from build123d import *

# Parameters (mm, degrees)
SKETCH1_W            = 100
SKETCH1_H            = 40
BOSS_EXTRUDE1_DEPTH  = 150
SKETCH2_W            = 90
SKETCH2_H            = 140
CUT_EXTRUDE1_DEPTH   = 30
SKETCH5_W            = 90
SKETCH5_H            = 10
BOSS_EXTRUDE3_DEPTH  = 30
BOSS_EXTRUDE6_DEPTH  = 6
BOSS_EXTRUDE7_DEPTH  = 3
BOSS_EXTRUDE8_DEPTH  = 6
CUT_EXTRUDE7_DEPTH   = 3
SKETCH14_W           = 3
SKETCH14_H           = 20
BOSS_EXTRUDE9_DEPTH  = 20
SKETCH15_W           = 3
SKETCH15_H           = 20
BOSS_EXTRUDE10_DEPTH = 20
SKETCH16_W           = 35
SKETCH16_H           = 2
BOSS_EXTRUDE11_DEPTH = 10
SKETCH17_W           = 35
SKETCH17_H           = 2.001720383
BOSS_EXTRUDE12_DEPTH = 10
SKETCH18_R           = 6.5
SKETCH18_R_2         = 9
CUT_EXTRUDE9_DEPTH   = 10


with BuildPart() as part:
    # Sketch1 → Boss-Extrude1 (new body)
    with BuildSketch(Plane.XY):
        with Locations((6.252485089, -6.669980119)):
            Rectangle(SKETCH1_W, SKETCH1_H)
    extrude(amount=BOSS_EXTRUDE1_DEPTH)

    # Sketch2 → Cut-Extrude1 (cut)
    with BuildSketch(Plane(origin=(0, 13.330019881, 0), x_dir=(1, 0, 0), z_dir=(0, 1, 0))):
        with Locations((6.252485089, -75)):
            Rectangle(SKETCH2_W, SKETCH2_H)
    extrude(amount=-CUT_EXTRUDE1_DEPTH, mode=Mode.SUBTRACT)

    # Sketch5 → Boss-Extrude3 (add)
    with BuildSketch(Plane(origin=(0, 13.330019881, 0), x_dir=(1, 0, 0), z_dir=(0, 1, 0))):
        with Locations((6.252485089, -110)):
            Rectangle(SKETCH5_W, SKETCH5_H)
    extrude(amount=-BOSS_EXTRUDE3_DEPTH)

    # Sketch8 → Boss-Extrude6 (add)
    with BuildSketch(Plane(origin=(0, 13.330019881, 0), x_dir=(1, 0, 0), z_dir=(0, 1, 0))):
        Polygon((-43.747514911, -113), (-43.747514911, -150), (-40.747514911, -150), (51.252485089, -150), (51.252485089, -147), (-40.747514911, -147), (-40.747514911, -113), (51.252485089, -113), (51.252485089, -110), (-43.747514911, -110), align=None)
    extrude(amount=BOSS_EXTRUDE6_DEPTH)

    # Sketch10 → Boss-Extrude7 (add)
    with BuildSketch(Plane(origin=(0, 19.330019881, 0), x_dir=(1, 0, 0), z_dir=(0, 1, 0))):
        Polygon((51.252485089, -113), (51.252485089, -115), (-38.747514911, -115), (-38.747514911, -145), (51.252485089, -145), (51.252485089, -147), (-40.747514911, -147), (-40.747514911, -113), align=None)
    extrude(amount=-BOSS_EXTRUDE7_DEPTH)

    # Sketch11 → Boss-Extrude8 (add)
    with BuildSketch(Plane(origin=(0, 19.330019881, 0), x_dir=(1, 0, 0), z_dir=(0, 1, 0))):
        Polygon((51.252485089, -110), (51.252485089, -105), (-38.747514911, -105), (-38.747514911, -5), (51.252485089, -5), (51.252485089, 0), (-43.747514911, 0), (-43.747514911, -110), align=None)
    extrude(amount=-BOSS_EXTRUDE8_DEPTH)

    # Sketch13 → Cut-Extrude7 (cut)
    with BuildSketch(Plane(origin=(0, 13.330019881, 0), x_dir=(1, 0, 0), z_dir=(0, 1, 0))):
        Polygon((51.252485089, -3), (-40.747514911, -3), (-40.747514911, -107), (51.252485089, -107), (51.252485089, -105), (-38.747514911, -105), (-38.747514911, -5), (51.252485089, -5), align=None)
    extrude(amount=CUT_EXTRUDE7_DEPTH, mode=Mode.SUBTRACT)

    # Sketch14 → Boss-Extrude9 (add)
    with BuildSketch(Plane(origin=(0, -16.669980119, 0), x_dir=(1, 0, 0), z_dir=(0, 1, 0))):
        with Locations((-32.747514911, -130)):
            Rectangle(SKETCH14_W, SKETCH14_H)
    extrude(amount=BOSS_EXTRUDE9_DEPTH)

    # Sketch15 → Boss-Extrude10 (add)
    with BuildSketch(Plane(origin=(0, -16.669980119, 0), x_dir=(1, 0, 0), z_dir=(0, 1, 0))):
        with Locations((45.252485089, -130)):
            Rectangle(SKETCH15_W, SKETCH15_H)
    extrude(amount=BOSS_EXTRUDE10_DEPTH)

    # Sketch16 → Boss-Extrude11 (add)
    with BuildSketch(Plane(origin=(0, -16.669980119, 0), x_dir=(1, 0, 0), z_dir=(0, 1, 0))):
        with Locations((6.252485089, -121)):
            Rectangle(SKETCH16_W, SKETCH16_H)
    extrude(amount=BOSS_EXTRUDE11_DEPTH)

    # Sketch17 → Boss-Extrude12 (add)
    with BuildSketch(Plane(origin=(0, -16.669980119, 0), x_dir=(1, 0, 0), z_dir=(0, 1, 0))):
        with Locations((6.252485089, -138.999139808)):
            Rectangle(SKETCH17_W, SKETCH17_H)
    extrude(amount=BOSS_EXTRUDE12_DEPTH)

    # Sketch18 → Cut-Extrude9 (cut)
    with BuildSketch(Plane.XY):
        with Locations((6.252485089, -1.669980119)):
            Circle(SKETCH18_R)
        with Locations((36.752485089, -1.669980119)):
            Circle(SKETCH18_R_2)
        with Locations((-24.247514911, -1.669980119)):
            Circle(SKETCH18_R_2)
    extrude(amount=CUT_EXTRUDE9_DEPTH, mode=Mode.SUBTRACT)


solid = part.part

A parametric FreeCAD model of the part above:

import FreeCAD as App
import Part
import Sketcher
from FreeCAD import Vector

doc = App.newDocument("Part")
body = doc.addObject("PartDesign::Body", "Body")

# Sketch on XY plane
sketch1 = body.newObject("Sketcher::SketchObject", "Sketch")
sketch1.AttachmentSupport = (doc.getObject("XY_Plane"), [""])
sketch1.MapMode = "FlatFace"
sketch1.addGeometry([
    Part.LineSegment(Vector(-44, 13, 0), Vector(-44, -27, 0)),
    Part.LineSegment(Vector(-44, -27, 0), Vector(56, -27, 0)),
    Part.LineSegment(Vector(56, -27, 0), Vector(56, 13, 0)),
    Part.LineSegment(Vector(56, 13, 0), Vector(-44, 13, 0)),
], False)
sketch1.addConstraint([
    Sketcher.Constraint("Coincident", 0, 2, 1, 1),
    Sketcher.Constraint("Coincident", 1, 2, 2, 1),
    Sketcher.Constraint("Coincident", 2, 2, 3, 1),
    Sketcher.Constraint("Coincident", 3, 2, 0, 1),
    Sketcher.Constraint("Vertical", 0),
    Sketcher.Constraint("Horizontal", 1),
    Sketcher.Constraint("Vertical", 2),
    Sketcher.Constraint("Horizontal", 3),
    Sketcher.Constraint("DistanceX", 1, 1, 1, 2, 100.0),
    Sketcher.Constraint("DistanceY", 0, 2, 0, 1, 40.0),
    Sketcher.Constraint("DistanceY", 0, 2, -1, 1, 26.66998),
    Sketcher.Constraint("DistanceX", 0, 2, -1, 1, 43.747515),
])
pad1 = body.newObject("PartDesign::Pad", "Pad")
pad1.Profile = sketch1
pad1.Length = 150

# Sketch on XZ plane
sketch2 = body.newObject("Sketcher::SketchObject", "Sketch001")
sketch2.AttachmentSupport = (doc.getObject("XZ_Plane"), [""])
sketch2.MapMode = "FlatFace"
sketch2.AttachmentOffset = App.Placement(Vector(0, 0, -13.33002), App.Rotation())
sketch2.addGeometry([
    Part.LineSegment(Vector(-39, 5, 0), Vector(-39, 145, 0)),
    Part.LineSegment(Vector(-39, 145, 0), Vector(51, 145, 0)),
    Part.LineSegment(Vector(51, 145, 0), Vector(51, 5, 0)),
    Part.LineSegment(Vector(51, 5, 0), Vector(-39, 5, 0)),
], False)
sketch2.addConstraint([
    Sketcher.Constraint("Coincident", 0, 2, 1, 1),
    Sketcher.Constraint("Coincident", 1, 2, 2, 1),
    Sketcher.Constraint("Coincident", 2, 2, 3, 1),
    Sketcher.Constraint("Coincident", 3, 2, 0, 1),
    Sketcher.Constraint("Vertical", 0),
    Sketcher.Constraint("Horizontal", 1),
    Sketcher.Constraint("Vertical", 2),
    Sketcher.Constraint("Horizontal", 3),
    Sketcher.Constraint("DistanceX", 1, 1, 1, 2, 90.0),
    Sketcher.Constraint("DistanceY", 0, 1, 0, 2, 140.0),
    Sketcher.Constraint("DistanceY", -1, 1, 0, 2, 145.0),
    Sketcher.Constraint("DistanceX", 0, 2, -1, 1, 38.747515),
])
pocket1 = body.newObject("PartDesign::Pocket", "Pocket")
pocket1.Profile = sketch2
pocket1.Length = 30
pocket1.Reversed = True

# Sketch on XZ plane
sketch3 = body.newObject("Sketcher::SketchObject", "Sketch002")
sketch3.AttachmentSupport = (doc.getObject("XZ_Plane"), [""])
sketch3.MapMode = "FlatFace"
sketch3.AttachmentOffset = App.Placement(Vector(0, 0, -13.33002), App.Rotation())
sketch3.addGeometry([
    Part.LineSegment(Vector(-39, 105, 0), Vector(-39, 115, 0)),
    Part.LineSegment(Vector(-39, 115, 0), Vector(51, 115, 0)),
    Part.LineSegment(Vector(51, 115, 0), Vector(51, 105, 0)),
    Part.LineSegment(Vector(51, 105, 0), Vector(-39, 105, 0)),
], False)
sketch3.addConstraint([
    Sketcher.Constraint("Coincident", 0, 2, 1, 1),
    Sketcher.Constraint("Coincident", 1, 2, 2, 1),
    Sketcher.Constraint("Coincident", 2, 2, 3, 1),
    Sketcher.Constraint("Coincident", 3, 2, 0, 1),
    Sketcher.Constraint("Vertical", 0),
    Sketcher.Constraint("Horizontal", 1),
    Sketcher.Constraint("Vertical", 2),
    Sketcher.Constraint("Horizontal", 3),
    Sketcher.Constraint("DistanceX", 1, 1, 1, 2, 90.0),
    Sketcher.Constraint("DistanceY", 0, 1, 0, 2, 10.0),
    Sketcher.Constraint("DistanceY", -1, 1, 0, 2, 115.0),
    Sketcher.Constraint("DistanceX", 0, 2, -1, 1, 38.747515),
])
pad2 = body.newObject("PartDesign::Pad", "Pad001")
pad2.Profile = sketch3
pad2.Length = 30

# Sketch on XZ plane
sketch4 = body.newObject("Sketcher::SketchObject", "Sketch003")
sketch4.AttachmentSupport = (doc.getObject("XZ_Plane"), [""])
sketch4.MapMode = "FlatFace"
sketch4.AttachmentOffset = App.Placement(Vector(0, 0, -13.33002), App.Rotation())
sketch4.addGeometry([
    Part.LineSegment(Vector(-43.7, 150, 0), Vector(51.3, 150, 0)),  # 0
    Part.LineSegment(Vector(51.3, 150, 0), Vector(51.3, 147, 0)),  # 1
    Part.LineSegment(Vector(51.3, 147, 0), Vector(-40.7, 147, 0)),  # 2
    Part.LineSegment(Vector(-40.7, 147, 0), Vector(-40.7, 113, 0)),  # 3
    Part.LineSegment(Vector(-40.7, 113, 0), Vector(51.3, 113, 0)),  # 4
    Part.LineSegment(Vector(51.3, 113, 0), Vector(51.3, 110, 0)),  # 5
    Part.LineSegment(Vector(51.3, 110, 0), Vector(-43.7, 110, 0)),  # 6
    Part.LineSegment(Vector(-43.7, 110, 0), Vector(-43.7, 150, 0)),  # 7
], False)
sketch4.addConstraint([
    Sketcher.Constraint("Coincident", 0, 2, 1, 1),
    Sketcher.Constraint("Coincident", 1, 2, 2, 1),
    Sketcher.Constraint("Coincident", 2, 2, 3, 1),
    Sketcher.Constraint("Coincident", 3, 2, 4, 1),
    Sketcher.Constraint("Coincident", 4, 2, 5, 1),
    Sketcher.Constraint("Coincident", 5, 2, 6, 1),
    Sketcher.Constraint("Coincident", 6, 2, 7, 1),
    Sketcher.Constraint("Coincident", 7, 2, 0, 1),
    Sketcher.Constraint("Horizontal", 0),
    Sketcher.Constraint("Vertical", 1),
    Sketcher.Constraint("Horizontal", 2),
    Sketcher.Constraint("Vertical", 3),
    Sketcher.Constraint("Horizontal", 4),
    Sketcher.Constraint("Vertical", 5),
    Sketcher.Constraint("Horizontal", 6),
    Sketcher.Constraint("Vertical", 7),
    Sketcher.Constraint("Vertical", 1, 2, 4, 2),
    Sketcher.Constraint("Equal", 1, 5),
    Sketcher.Constraint("DistanceX", 0, 1, 0, 2, 95.0),
    Sketcher.Constraint("DistanceX", 2, 2, 2, 1, 92.0),
    Sketcher.Constraint("DistanceY", 1, 2, 1, 1, 3.0),
    Sketcher.Constraint("DistanceY", 3, 2, 3, 1, 34.0),
    Sketcher.Constraint("DistanceY", -1, 1, 0, 2, 150.0),
    Sketcher.Constraint("DistanceX", -1, 1, 0, 2, 51.252485),
])
pad3 = body.newObject("PartDesign::Pad", "Pad002")
pad3.Profile = sketch4
pad3.Length = 6
pad3.Reversed = True

# Sketch on XZ plane
sketch5 = body.newObject("Sketcher::SketchObject", "Sketch004")
sketch5.AttachmentSupport = (doc.getObject("XZ_Plane"), [""])
sketch5.MapMode = "FlatFace"
sketch5.AttachmentOffset = App.Placement(Vector(0, 0, -19.33002), App.Rotation())
sketch5.addGeometry([
    Part.LineSegment(Vector(51.3, 115, 0), Vector(51.3, 113, 0)),  # 0
    Part.LineSegment(Vector(51.3, 113, 0), Vector(-40.7, 113, 0)),  # 1
    Part.LineSegment(Vector(-40.7, 113, 0), Vector(-40.7, 147, 0)),  # 2
    Part.LineSegment(Vector(-40.7, 147, 0), Vector(51.3, 147, 0)),  # 3
    Part.LineSegment(Vector(51.3, 147, 0), Vector(51.3, 145, 0)),  # 4
    Part.LineSegment(Vector(51.3, 145, 0), Vector(-38.7, 145, 0)),  # 5
    Part.LineSegment(Vector(-38.7, 145, 0), Vector(-38.7, 115, 0)),  # 6
    Part.LineSegment(Vector(-38.7, 115, 0), Vector(51.3, 115, 0)),  # 7
], False)
sketch5.addConstraint([
    Sketcher.Constraint("Coincident", 0, 2, 1, 1),
    Sketcher.Constraint("Coincident", 1, 2, 2, 1),
    Sketcher.Constraint("Coincident", 2, 2, 3, 1),
    Sketcher.Constraint("Coincident", 3, 2, 4, 1),
    Sketcher.Constraint("Coincident", 4, 2, 5, 1),
    Sketcher.Constraint("Coincident", 5, 2, 6, 1),
    Sketcher.Constraint("Coincident", 6, 2, 7, 1),
    Sketcher.Constraint("Coincident", 7, 2, 0, 1),
    Sketcher.Constraint("Vertical", 0),
    Sketcher.Constraint("Horizontal", 1),
    Sketcher.Constraint("Vertical", 2),
    Sketcher.Constraint("Horizontal", 3),
    Sketcher.Constraint("Vertical", 4),
    Sketcher.Constraint("Horizontal", 5),
    Sketcher.Constraint("Vertical", 6),
    Sketcher.Constraint("Horizontal", 7),
    Sketcher.Constraint("Vertical", 0, 2, 3, 2),
    Sketcher.Constraint("Equal", 0, 4),
    Sketcher.Constraint("DistanceX", 1, 2, 1, 1, 92.0),
    Sketcher.Constraint("DistanceX", 5, 2, 5, 1, 90.0),
    Sketcher.Constraint("DistanceY", 0, 2, 0, 1, 2.0),
    Sketcher.Constraint("DistanceY", 2, 1, 2, 2, 34.0),
    Sketcher.Constraint("DistanceY", -1, 1, 0, 2, 113.0),
    Sketcher.Constraint("DistanceX", -1, 1, 0, 2, 51.252485),
])
pad4 = body.newObject("PartDesign::Pad", "Pad003")
pad4.Profile = sketch5
pad4.Length = 3

# Sketch on XZ plane
sketch6 = body.newObject("Sketcher::SketchObject", "Sketch005")
sketch6.AttachmentSupport = (doc.getObject("XZ_Plane"), [""])
sketch6.MapMode = "FlatFace"
sketch6.AttachmentOffset = App.Placement(Vector(0, 0, -19.33002), App.Rotation())
sketch6.addGeometry([
    Part.LineSegment(Vector(51, 110, 0), Vector(51, 105, 0)),  # 0
    Part.LineSegment(Vector(51, 105, 0), Vector(-39, 105, 0)),  # 1
    Part.LineSegment(Vector(-39, 105, 0), Vector(-39, 5, 0)),  # 2
    Part.LineSegment(Vector(-39, 5, 0), Vector(51, 5, 0)),  # 3
    Part.LineSegment(Vector(51, 5, 0), Vector(51, 0, 0)),  # 4
    Part.LineSegment(Vector(51, 0, 0), Vector(-44, 0, 0)),  # 5
    Part.LineSegment(Vector(-44, 0, 0), Vector(-44, 110, 0)),  # 6
    Part.LineSegment(Vector(-44, 110, 0), Vector(51, 110, 0)),  # 7
], False)
sketch6.addConstraint([
    Sketcher.Constraint("Coincident", 0, 2, 1, 1),
    Sketcher.Constraint("Coincident", 1, 2, 2, 1),
    Sketcher.Constraint("Coincident", 2, 2, 3, 1),
    Sketcher.Constraint("Coincident", 3, 2, 4, 1),
    Sketcher.Constraint("Coincident", 4, 2, 5, 1),
    Sketcher.Constraint("Coincident", 5, 2, 6, 1),
    Sketcher.Constraint("Coincident", 6, 2, 7, 1),
    Sketcher.Constraint("Coincident", 7, 2, 0, 1),
    Sketcher.Constraint("Vertical", 0),
    Sketcher.Constraint("Horizontal", 1),
    Sketcher.Constraint("Vertical", 2),
    Sketcher.Constraint("Horizontal", 3),
    Sketcher.Constraint("Vertical", 4),
    Sketcher.Constraint("Horizontal", 5),
    Sketcher.Constraint("Vertical", 6),
    Sketcher.Constraint("Horizontal", 7),
    Sketcher.Constraint("PointOnObject", 4, 2, -1),
    Sketcher.Constraint("Vertical", 0, 2, 3, 2),
    Sketcher.Constraint("Equal", 0, 4),
    Sketcher.Constraint("DistanceX", 1, 2, 1, 1, 90.0),
    Sketcher.Constraint("DistanceX", 5, 2, 5, 1, 95.0),
    Sketcher.Constraint("DistanceY", 0, 2, 0, 1, 5.0),
    Sketcher.Constraint("DistanceY", 2, 2, 2, 1, 100.0),
    Sketcher.Constraint("DistanceX", -1, 1, 0, 2, 51.252485),
])
pad5 = body.newObject("PartDesign::Pad", "Pad004")
pad5.Profile = sketch6
pad5.Length = 6

# Sketch on XZ plane
sketch7 = body.newObject("Sketcher::SketchObject", "Sketch006")
sketch7.AttachmentSupport = (doc.getObject("XZ_Plane"), [""])
sketch7.MapMode = "FlatFace"
sketch7.AttachmentOffset = App.Placement(Vector(0, 0, -13.33002), App.Rotation())
sketch7.addGeometry([
    Part.LineSegment(Vector(51.3, 3, 0), Vector(-40.7, 3, 0)),  # 0
    Part.LineSegment(Vector(-40.7, 3, 0), Vector(-40.7, 107, 0)),  # 1
    Part.LineSegment(Vector(-40.7, 107, 0), Vector(51.3, 107, 0)),  # 2
    Part.LineSegment(Vector(51.3, 107, 0), Vector(51.3, 105, 0)),  # 3
    Part.LineSegment(Vector(51.3, 105, 0), Vector(-38.7, 105, 0)),  # 4
    Part.LineSegment(Vector(-38.7, 105, 0), Vector(-38.7, 5, 0)),  # 5
    Part.LineSegment(Vector(-38.7, 5, 0), Vector(51.3, 5, 0)),  # 6
    Part.LineSegment(Vector(51.3, 5, 0), Vector(51.3, 3, 0)),  # 7
], False)
sketch7.addConstraint([
    Sketcher.Constraint("Coincident", 0, 2, 1, 1),
    Sketcher.Constraint("Coincident", 1, 2, 2, 1),
    Sketcher.Constraint("Coincident", 2, 2, 3, 1),
    Sketcher.Constraint("Coincident", 3, 2, 4, 1),
    Sketcher.Constraint("Coincident", 4, 2, 5, 1),
    Sketcher.Constraint("Coincident", 5, 2, 6, 1),
    Sketcher.Constraint("Coincident", 6, 2, 7, 1),
    Sketcher.Constraint("Coincident", 7, 2, 0, 1),
    Sketcher.Constraint("Horizontal", 0),
    Sketcher.Constraint("Vertical", 1),
    Sketcher.Constraint("Horizontal", 2),
    Sketcher.Constraint("Vertical", 3),
    Sketcher.Constraint("Horizontal", 4),
    Sketcher.Constraint("Vertical", 5),
    Sketcher.Constraint("Horizontal", 6),
    Sketcher.Constraint("Vertical", 7),
    Sketcher.Constraint("Vertical", 3, 2, 6, 2),
    Sketcher.Constraint("Equal", 3, 7),
    Sketcher.Constraint("DistanceX", 0, 2, 0, 1, 92.0),
    Sketcher.Constraint("DistanceX", 4, 2, 4, 1, 90.0),
    Sketcher.Constraint("DistanceY", 1, 1, 1, 2, 104.0),
    Sketcher.Constraint("DistanceY", 3, 2, 3, 1, 2.0),
    Sketcher.Constraint("DistanceY", -1, 1, 0, 2, 3.0),
    Sketcher.Constraint("DistanceX", 0, 2, -1, 1, 40.747515),
])
pocket2 = body.newObject("PartDesign::Pocket", "Pocket001")
pocket2.Profile = sketch7
pocket2.Length = 3

# Sketch on XZ plane
sketch8 = body.newObject("Sketcher::SketchObject", "Sketch007")
sketch8.AttachmentSupport = (doc.getObject("XZ_Plane"), [""])
sketch8.MapMode = "FlatFace"
sketch8.AttachmentOffset = App.Placement(Vector(0, 0, 16.66998), App.Rotation())
sketch8.addGeometry([
    Part.LineSegment(Vector(-34.2, 120, 0), Vector(-34.2, 140, 0)),
    Part.LineSegment(Vector(-34.2, 140, 0), Vector(-31.2, 140, 0)),
    Part.LineSegment(Vector(-31.2, 140, 0), Vector(-31.2, 120, 0)),
    Part.LineSegment(Vector(-31.2, 120, 0), Vector(-34.2, 120, 0)),
], False)
sketch8.addConstraint([
    Sketcher.Constraint("Coincident", 0, 2, 1, 1),
    Sketcher.Constraint("Coincident", 1, 2, 2, 1),
    Sketcher.Constraint("Coincident", 2, 2, 3, 1),
    Sketcher.Constraint("Coincident", 3, 2, 0, 1),
    Sketcher.Constraint("Vertical", 0),
    Sketcher.Constraint("Horizontal", 1),
    Sketcher.Constraint("Vertical", 2),
    Sketcher.Constraint("Horizontal", 3),
    Sketcher.Constraint("DistanceX", 1, 1, 1, 2, 3.0),
    Sketcher.Constraint("DistanceY", 0, 1, 0, 2, 20.0),
    Sketcher.Constraint("DistanceY", -1, 1, 0, 2, 140.0),
    Sketcher.Constraint("DistanceX", 0, 2, -1, 1, 34.247515),
])
pad6 = body.newObject("PartDesign::Pad", "Pad005")
pad6.Profile = sketch8
pad6.Length = 20
pad6.Reversed = True

# Sketch on XZ plane
sketch9 = body.newObject("Sketcher::SketchObject", "Sketch008")
sketch9.AttachmentSupport = (doc.getObject("XZ_Plane"), [""])
sketch9.MapMode = "FlatFace"
sketch9.AttachmentOffset = App.Placement(Vector(0, 0, 16.66998), App.Rotation())
sketch9.addGeometry([
    Part.LineSegment(Vector(43.8, 120, 0), Vector(43.8, 140, 0)),
    Part.LineSegment(Vector(43.8, 140, 0), Vector(46.8, 140, 0)),
    Part.LineSegment(Vector(46.8, 140, 0), Vector(46.8, 120, 0)),
    Part.LineSegment(Vector(46.8, 120, 0), Vector(43.8, 120, 0)),
], False)
sketch9.addConstraint([
    Sketcher.Constraint("Coincident", 0, 2, 1, 1),
    Sketcher.Constraint("Coincident", 1, 2, 2, 1),
    Sketcher.Constraint("Coincident", 2, 2, 3, 1),
    Sketcher.Constraint("Coincident", 3, 2, 0, 1),
    Sketcher.Constraint("Vertical", 0),
    Sketcher.Constraint("Horizontal", 1),
    Sketcher.Constraint("Vertical", 2),
    Sketcher.Constraint("Horizontal", 3),
    Sketcher.Constraint("DistanceX", 1, 1, 1, 2, 3.0),
    Sketcher.Constraint("DistanceY", 0, 1, 0, 2, 20.0),
    Sketcher.Constraint("DistanceY", -1, 1, 0, 2, 140.0),
    Sketcher.Constraint("DistanceX", -1, 1, 0, 2, 43.752485),
])
pad7 = body.newObject("PartDesign::Pad", "Pad006")
pad7.Profile = sketch9
pad7.Length = 20
pad7.Reversed = True

# Sketch on XZ plane
sketch10 = body.newObject("Sketcher::SketchObject", "Sketch009")
sketch10.AttachmentSupport = (doc.getObject("XZ_Plane"), [""])
sketch10.MapMode = "FlatFace"
sketch10.AttachmentOffset = App.Placement(Vector(0, 0, 16.66998), App.Rotation())
sketch10.addGeometry([
    Part.LineSegment(Vector(-11.2, 120, 0), Vector(-11.2, 122, 0)),
    Part.LineSegment(Vector(-11.2, 122, 0), Vector(23.8, 122, 0)),
    Part.LineSegment(Vector(23.8, 122, 0), Vector(23.8, 120, 0)),
    Part.LineSegment(Vector(23.8, 120, 0), Vector(-11.2, 120, 0)),
], False)
sketch10.addConstraint([
    Sketcher.Constraint("Coincident", 0, 2, 1, 1),
    Sketcher.Constraint("Coincident", 1, 2, 2, 1),
    Sketcher.Constraint("Coincident", 2, 2, 3, 1),
    Sketcher.Constraint("Coincident", 3, 2, 0, 1),
    Sketcher.Constraint("Vertical", 0),
    Sketcher.Constraint("Horizontal", 1),
    Sketcher.Constraint("Vertical", 2),
    Sketcher.Constraint("Horizontal", 3),
    Sketcher.Constraint("DistanceX", 1, 1, 1, 2, 35.0),
    Sketcher.Constraint("DistanceY", 0, 1, 0, 2, 2.0),
    Sketcher.Constraint("DistanceY", -1, 1, 0, 2, 122.0),
    Sketcher.Constraint("DistanceX", 0, 2, -1, 1, 11.247515),
])
pad8 = body.newObject("PartDesign::Pad", "Pad007")
pad8.Profile = sketch10
pad8.Length = 10
pad8.Reversed = True

# Sketch on XZ plane
sketch11 = body.newObject("Sketcher::SketchObject", "Sketch010")
sketch11.AttachmentSupport = (doc.getObject("XZ_Plane"), [""])
sketch11.MapMode = "FlatFace"
sketch11.AttachmentOffset = App.Placement(Vector(0, 0, 16.66998), App.Rotation())
sketch11.addGeometry([
    Part.LineSegment(Vector(-11.2, 138, 0), Vector(-11.2, 140, 0)),
    Part.LineSegment(Vector(-11.2, 140, 0), Vector(23.8, 140, 0)),
    Part.LineSegment(Vector(23.8, 140, 0), Vector(23.8, 138, 0)),
    Part.LineSegment(Vector(23.8, 138, 0), Vector(-11.2, 138, 0)),
], False)
sketch11.addConstraint([
    Sketcher.Constraint("Coincident", 0, 2, 1, 1),
    Sketcher.Constraint("Coincident", 1, 2, 2, 1),
    Sketcher.Constraint("Coincident", 2, 2, 3, 1),
    Sketcher.Constraint("Coincident", 3, 2, 0, 1),
    Sketcher.Constraint("Vertical", 0),
    Sketcher.Constraint("Horizontal", 1),
    Sketcher.Constraint("Vertical", 2),
    Sketcher.Constraint("Horizontal", 3),
    Sketcher.Constraint("DistanceX", 1, 1, 1, 2, 35.0),
    Sketcher.Constraint("DistanceY", -1, 1, 0, 2, 140.0),
    Sketcher.Constraint("DistanceY", 0, 1, 0, 2, 2.00172),
    Sketcher.Constraint("DistanceX", 0, 2, -1, 1, 11.247515),
])
pad9 = body.newObject("PartDesign::Pad", "Pad008")
pad9.Profile = sketch11
pad9.Length = 10
pad9.Reversed = True

# Sketch on XY plane
sketch12 = body.newObject("Sketcher::SketchObject", "Sketch011")
sketch12.AttachmentSupport = (doc.getObject("XY_Plane"), [""])
sketch12.MapMode = "FlatFace"
sketch12.addGeometry([
    Part.Circle(Vector(6, -2, 0), Vector(0, 0, 1), 6),
    Part.Circle(Vector(37, -2, 0), Vector(0, 0, 1), 9),
    Part.Circle(Vector(-24, -2, 0), Vector(0, 0, 1), 9),
], False)
sketch12.addConstraint([
    Sketcher.Constraint("Equal", 1, 2),
    Sketcher.Constraint("Horizontal", 0, 3, 1, 3),
    Sketcher.Constraint("Horizontal", 1, 3, 2, 3),
    Sketcher.Constraint("Diameter", 0, 13.0),
    Sketcher.Constraint("Diameter", 1, 18.0),
    Sketcher.Constraint("DistanceX", 2, 3, 1, 3, 61.0),
    Sketcher.Constraint("DistanceX", 0, 3, 1, 3, 30.5),
    Sketcher.Constraint("DistanceY", 0, 3, -1, 1, 1.66998),
    Sketcher.Constraint("DistanceX", -1, 1, 0, 3, 6.252485),
])
pocket3 = body.newObject("PartDesign::Pocket", "Pocket002")
pocket3.Profile = sketch12
pocket3.Length = 10
pocket3.Reversed = True

doc.recompute()
